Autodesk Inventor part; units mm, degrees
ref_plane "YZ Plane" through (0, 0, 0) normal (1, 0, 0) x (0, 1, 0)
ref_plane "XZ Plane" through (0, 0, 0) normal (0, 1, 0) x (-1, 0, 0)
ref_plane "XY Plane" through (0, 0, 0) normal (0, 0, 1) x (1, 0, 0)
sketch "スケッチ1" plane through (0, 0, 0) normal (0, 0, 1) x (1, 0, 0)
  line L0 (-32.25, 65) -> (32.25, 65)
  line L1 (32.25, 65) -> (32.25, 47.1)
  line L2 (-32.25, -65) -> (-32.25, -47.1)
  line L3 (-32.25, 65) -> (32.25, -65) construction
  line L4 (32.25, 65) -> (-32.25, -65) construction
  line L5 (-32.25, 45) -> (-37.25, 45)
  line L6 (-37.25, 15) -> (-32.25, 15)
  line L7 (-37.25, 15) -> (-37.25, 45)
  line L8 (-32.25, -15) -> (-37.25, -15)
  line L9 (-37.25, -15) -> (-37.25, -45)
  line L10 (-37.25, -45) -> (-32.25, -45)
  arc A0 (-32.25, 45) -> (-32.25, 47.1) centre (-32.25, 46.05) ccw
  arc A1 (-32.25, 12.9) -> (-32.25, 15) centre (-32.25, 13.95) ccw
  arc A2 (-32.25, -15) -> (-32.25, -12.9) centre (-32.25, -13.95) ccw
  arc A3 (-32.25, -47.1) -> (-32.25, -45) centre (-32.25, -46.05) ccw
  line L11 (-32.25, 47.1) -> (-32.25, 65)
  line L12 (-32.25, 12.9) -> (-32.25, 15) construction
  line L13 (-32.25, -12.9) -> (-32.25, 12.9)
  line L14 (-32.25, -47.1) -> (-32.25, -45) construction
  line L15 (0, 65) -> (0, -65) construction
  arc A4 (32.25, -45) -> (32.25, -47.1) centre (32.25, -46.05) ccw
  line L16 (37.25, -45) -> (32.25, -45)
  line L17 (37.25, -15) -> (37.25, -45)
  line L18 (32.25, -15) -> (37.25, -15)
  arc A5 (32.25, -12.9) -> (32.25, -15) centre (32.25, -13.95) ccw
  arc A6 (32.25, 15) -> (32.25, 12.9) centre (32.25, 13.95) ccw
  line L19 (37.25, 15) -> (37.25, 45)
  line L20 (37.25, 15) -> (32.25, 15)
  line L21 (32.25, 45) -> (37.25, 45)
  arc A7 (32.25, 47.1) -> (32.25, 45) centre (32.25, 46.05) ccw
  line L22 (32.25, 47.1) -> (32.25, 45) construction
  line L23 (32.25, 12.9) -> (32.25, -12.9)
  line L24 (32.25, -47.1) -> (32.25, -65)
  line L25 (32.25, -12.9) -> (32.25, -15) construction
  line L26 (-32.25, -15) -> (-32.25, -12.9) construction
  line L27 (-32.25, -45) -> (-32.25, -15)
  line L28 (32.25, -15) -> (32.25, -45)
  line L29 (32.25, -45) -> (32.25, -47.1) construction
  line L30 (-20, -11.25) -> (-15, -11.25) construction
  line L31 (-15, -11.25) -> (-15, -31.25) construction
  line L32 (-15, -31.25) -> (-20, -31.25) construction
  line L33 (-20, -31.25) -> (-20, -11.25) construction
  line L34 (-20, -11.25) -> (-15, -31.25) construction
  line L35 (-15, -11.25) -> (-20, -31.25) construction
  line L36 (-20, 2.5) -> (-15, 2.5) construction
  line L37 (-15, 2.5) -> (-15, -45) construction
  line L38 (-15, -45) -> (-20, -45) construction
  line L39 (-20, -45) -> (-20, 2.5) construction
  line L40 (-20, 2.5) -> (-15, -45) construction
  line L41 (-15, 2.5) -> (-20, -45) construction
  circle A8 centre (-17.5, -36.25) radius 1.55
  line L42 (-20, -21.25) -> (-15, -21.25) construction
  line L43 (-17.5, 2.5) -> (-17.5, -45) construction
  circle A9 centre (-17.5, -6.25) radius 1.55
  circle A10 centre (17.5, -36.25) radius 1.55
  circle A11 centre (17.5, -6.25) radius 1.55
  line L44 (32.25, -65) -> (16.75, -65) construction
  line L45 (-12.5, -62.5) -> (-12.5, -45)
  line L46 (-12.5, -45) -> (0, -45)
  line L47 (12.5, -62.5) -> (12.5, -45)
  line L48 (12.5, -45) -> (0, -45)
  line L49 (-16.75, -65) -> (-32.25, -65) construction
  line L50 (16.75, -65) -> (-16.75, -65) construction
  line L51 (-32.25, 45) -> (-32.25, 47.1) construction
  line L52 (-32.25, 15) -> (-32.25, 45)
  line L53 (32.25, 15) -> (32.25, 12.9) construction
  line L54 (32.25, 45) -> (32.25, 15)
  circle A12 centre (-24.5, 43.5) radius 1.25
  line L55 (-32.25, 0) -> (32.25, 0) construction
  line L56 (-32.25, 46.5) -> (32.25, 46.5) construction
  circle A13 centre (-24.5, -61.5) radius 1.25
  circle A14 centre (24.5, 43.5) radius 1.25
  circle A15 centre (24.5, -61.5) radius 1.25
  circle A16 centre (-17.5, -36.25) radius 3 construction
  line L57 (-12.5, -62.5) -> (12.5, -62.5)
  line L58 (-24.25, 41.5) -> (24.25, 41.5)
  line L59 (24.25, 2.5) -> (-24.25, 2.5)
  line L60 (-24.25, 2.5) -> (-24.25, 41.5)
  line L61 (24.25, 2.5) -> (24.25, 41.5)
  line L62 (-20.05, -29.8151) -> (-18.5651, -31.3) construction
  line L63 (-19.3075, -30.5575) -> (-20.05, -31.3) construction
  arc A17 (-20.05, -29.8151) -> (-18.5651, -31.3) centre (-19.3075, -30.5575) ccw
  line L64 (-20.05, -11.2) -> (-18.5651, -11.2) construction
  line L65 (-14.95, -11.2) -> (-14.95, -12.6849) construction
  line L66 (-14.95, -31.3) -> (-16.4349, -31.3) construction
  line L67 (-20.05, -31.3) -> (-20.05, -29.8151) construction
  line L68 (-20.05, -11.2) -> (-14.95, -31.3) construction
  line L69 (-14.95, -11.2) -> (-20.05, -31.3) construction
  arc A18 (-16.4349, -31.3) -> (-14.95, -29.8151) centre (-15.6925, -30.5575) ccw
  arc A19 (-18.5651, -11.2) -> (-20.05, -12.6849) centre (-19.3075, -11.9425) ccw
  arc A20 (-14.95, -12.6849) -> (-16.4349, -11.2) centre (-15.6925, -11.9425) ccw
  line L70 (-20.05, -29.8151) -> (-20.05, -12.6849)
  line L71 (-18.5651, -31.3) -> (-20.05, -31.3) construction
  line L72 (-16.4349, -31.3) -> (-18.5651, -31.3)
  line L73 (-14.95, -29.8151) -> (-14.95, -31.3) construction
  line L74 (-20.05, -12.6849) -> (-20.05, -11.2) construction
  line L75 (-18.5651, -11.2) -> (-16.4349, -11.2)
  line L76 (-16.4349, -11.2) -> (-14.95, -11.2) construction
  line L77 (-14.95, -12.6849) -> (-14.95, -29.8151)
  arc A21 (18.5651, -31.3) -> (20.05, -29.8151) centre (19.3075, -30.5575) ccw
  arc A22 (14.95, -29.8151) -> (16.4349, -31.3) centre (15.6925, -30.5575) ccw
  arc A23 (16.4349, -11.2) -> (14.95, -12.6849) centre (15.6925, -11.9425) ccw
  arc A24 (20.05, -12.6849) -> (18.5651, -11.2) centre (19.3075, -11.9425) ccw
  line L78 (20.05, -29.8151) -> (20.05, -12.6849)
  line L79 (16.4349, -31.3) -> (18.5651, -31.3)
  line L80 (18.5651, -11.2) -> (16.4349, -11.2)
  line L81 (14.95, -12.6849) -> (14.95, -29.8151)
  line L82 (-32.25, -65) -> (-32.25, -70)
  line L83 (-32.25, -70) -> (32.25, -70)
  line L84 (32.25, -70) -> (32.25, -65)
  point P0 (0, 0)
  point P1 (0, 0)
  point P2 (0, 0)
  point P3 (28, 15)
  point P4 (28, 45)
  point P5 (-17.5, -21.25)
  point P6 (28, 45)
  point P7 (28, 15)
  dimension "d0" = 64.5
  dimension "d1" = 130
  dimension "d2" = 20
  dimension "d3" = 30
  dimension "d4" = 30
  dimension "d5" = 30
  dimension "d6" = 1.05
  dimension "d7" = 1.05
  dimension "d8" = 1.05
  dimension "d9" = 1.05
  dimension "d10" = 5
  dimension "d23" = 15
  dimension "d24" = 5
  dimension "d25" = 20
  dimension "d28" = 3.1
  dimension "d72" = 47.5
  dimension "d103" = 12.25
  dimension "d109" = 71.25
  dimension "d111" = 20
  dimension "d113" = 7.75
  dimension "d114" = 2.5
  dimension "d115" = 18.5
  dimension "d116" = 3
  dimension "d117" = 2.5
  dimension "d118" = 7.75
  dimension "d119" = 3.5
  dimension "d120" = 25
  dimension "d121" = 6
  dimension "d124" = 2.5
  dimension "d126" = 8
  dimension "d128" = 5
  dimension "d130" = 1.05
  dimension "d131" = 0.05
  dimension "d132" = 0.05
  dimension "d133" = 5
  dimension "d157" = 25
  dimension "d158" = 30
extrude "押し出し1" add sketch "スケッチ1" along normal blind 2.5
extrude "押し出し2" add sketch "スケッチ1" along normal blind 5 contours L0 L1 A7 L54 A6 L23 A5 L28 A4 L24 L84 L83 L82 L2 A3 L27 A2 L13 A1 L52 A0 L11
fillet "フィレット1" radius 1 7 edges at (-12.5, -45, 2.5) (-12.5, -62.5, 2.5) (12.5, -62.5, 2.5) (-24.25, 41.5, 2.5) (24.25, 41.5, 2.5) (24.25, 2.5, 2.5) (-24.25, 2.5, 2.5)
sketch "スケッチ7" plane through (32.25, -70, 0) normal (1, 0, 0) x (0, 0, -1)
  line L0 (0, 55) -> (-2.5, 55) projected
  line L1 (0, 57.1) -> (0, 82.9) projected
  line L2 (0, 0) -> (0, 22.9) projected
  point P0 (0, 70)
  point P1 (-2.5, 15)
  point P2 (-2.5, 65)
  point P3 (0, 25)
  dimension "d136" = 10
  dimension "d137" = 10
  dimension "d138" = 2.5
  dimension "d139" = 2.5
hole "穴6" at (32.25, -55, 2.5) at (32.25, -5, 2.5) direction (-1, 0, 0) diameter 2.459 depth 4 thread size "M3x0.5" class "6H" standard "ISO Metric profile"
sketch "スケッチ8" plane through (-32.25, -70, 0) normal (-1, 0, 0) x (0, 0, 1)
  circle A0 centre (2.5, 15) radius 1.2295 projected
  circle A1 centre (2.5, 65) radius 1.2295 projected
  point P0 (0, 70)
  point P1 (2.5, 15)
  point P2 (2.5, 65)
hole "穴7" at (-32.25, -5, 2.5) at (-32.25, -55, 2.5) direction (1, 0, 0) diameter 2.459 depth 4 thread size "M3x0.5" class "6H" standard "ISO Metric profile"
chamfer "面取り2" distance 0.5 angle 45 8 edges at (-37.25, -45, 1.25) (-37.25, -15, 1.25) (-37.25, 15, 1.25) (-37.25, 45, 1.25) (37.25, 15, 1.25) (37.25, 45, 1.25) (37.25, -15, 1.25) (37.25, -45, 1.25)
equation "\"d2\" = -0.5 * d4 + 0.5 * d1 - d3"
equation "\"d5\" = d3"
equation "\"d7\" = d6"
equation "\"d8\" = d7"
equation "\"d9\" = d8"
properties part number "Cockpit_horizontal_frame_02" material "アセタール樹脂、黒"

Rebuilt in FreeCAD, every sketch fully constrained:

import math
import FreeCAD as App
import Part
import Sketcher


def edges_at(feature, points):
    """Names of the edges that pass closest to the given points."""
    edges = feature.Shape.Edges
    near = lambda p: min(range(len(edges)), key=lambda i: edges[i].distToShape(Part.Vertex(*p))[0])
    return sorted({f"Edge{near(p) + 1}" for p in points})


def add_polygon(sketch, points):
    """Adds a closed chain of lines whose ends are joined by coincident constraints."""
    first, n = sketch.GeometryCount, len(points)
    for a, b in zip(points, points[1:] + points[:1]):
        sketch.addGeometry(Part.LineSegment(App.Vector(*a, 0), App.Vector(*b, 0)), False)
    for i in range(n):
        sketch.addConstraint(Sketcher.Constraint("Coincident", first + i, 2, first + (i + 1) % n, 1))

doc = App.newDocument("Part")
body = doc.addObject("PartDesign::Body", "Body")

sketch1 = body.newObject("Sketcher::SketchObject", "Sketch")
sketch1.AttachmentSupport = (doc.getObject("XY_Plane"), [""])
sketch1.MapMode = "FlatFace"
sketch1.addGeometry(Part.LineSegment(App.Vector(32.25, 65, 0), App.Vector(-32.25, 65, 0)), False)
sketch1.addGeometry(Part.LineSegment(App.Vector(-32.25, 65, 0), App.Vector(-32.25, 47.1, 0)), False)
sketch1.addGeometry(Part.ArcOfCircle(Part.Circle(App.Vector(-32.25, 46.05, 0), App.Vector(0, 0, 1), 1.05), math.radians(-90), math.radians(90)), False)
sketch1.addGeometry(Part.LineSegment(App.Vector(-32.25, 45, 0), App.Vector(-37.25, 45, 0)), False)
sketch1.addGeometry(Part.LineSegment(App.Vector(-37.25, 45, 0), App.Vector(-37.25, 15, 0)), False)
sketch1.addGeometry(Part.LineSegment(App.Vector(-37.25, 15, 0), App.Vector(-32.25, 15, 0)), False)
sketch1.addGeometry(Part.ArcOfCircle(Part.Circle(App.Vector(-32.25, 13.95, 0), App.Vector(0, 0, 1), 1.05), math.radians(-90), math.radians(90)), False)
sketch1.addGeometry(Part.LineSegment(App.Vector(-32.25, 12.9, 0), App.Vector(-32.25, -12.9, 0)), False)
sketch1.addGeometry(Part.ArcOfCircle(Part.Circle(App.Vector(-32.25, -13.95, 0), App.Vector(0, 0, 1), 1.05), math.radians(-90), math.radians(90)), False)
sketch1.addGeometry(Part.LineSegment(App.Vector(-32.25, -15, 0), App.Vector(-37.25, -15, 0)), False)
sketch1.addGeometry(Part.LineSegment(App.Vector(-37.25, -15, 0), App.Vector(-37.25, -45, 0)), False)
sketch1.addGeometry(Part.LineSegment(App.Vector(-37.25, -45, 0), App.Vector(-32.25, -45, 0)), False)
sketch1.addGeometry(Part.ArcOfCircle(Part.Circle(App.Vector(-32.25, -46.05, 0), App.Vector(0, 0, 1), 1.05), math.radians(-90), math.radians(90)), False)
sketch1.addGeometry(Part.LineSegment(App.Vector(-32.25, -47.1, 0), App.Vector(-32.25, -70, 0)), False)
sketch1.addGeometry(Part.LineSegment(App.Vector(-32.25, -70, 0), App.Vector(32.25, -70, 0)), False)
sketch1.addGeometry(Part.LineSegment(App.Vector(32.25, -70, 0), App.Vector(32.25, -47.1, 0)), False)
sketch1.addGeometry(Part.ArcOfCircle(Part.Circle(App.Vector(32.25, -46.05, 0), App.Vector(0, 0, 1), 1.05), math.radians(90), math.radians(270)), False)
sketch1.addGeometry(Part.LineSegment(App.Vector(32.25, -45, 0), App.Vector(37.25, -45, 0)), False)
sketch1.addGeometry(Part.LineSegment(App.Vector(37.25, -45, 0), App.Vector(37.25, -15, 0)), False)
sketch1.addGeometry(Part.LineSegment(App.Vector(37.25, -15, 0), App.Vector(32.25, -15, 0)), False)
sketch1.addGeometry(Part.ArcOfCircle(Part.Circle(App.Vector(32.25, -13.95, 0), App.Vector(0, 0, 1), 1.05), math.radians(90), math.radians(270)), False)
sketch1.addGeometry(Part.LineSegment(App.Vector(32.25, -12.9, 0), App.Vector(32.25, 12.9, 0)), False)
sketch1.addGeometry(Part.ArcOfCircle(Part.Circle(App.Vector(32.25, 13.95, 0), App.Vector(0, 0, 1), 1.05), math.radians(90), math.radians(270)), False)
sketch1.addGeometry(Part.LineSegment(App.Vector(32.25, 15, 0), App.Vector(37.25, 15, 0)), False)
sketch1.addGeometry(Part.LineSegment(App.Vector(37.25, 15, 0), App.Vector(37.25, 45, 0)), False)
sketch1.addGeometry(Part.LineSegment(App.Vector(37.25, 45, 0), App.Vector(32.25, 45, 0)), False)
sketch1.addGeometry(Part.ArcOfCircle(Part.Circle(App.Vector(32.25, 46.05, 0), App.Vector(0, 0, 1), 1.05), math.radians(90), math.radians(270)), False)
sketch1.addGeometry(Part.LineSegment(App.Vector(32.25, 47.1, 0), App.Vector(32.25, 65, 0)), False)
sketch1.addGeometry(Part.Circle(App.Vector(-24.5, -61.5, 0), App.Vector(0, 0, 1), 1.25), False)
sketch1.addGeometry(Part.Circle(App.Vector(-17.5, -36.25, 0), App.Vector(0, 0, 1), 1.55), False)
sketch1.addGeometry(Part.ArcOfCircle(Part.Circle(App.Vector(-19.3075, -30.5575, 0), App.Vector(0, 0, 1), 1.049983), math.radians(135.003859), math.radians(314.996141)), False)
sketch1.addGeometry(Part.LineSegment(App.Vector(-20.05, -29.8151, 0), App.Vector(-20.05, -12.6849, 0)), False)
sketch1.addGeometry(Part.ArcOfCircle(Part.Circle(App.Vector(-19.3075, -11.9425, 0), App.Vector(0, 0, 1), 1.049983), math.radians(45.003859), math.radians(224.996141)), False)
sketch1.addGeometry(Part.LineSegment(App.Vector(-18.5651, -11.2, 0), App.Vector(-16.4349, -11.2, 0)), False)
sketch1.addGeometry(Part.ArcOfCircle(Part.Circle(App.Vector(-15.6925, -11.9425, 0), App.Vector(0, 0, 1), 1.049983), math.radians(-44.996141), math.radians(134.996141)), False)
sketch1.addGeometry(Part.LineSegment(App.Vector(-14.95, -12.6849, 0), App.Vector(-14.95, -29.8151, 0)), False)
sketch1.addGeometry(Part.ArcOfCircle(Part.Circle(App.Vector(-15.6925, -30.5575, 0), App.Vector(0, 0, 1), 1.049983), math.radians(-134.996141), math.radians(44.996141)), False)
sketch1.addGeometry(Part.LineSegment(App.Vector(-16.4349, -31.3, 0), App.Vector(-18.5651, -31.3, 0)), False)
sketch1.addGeometry(Part.Circle(App.Vector(-17.5, -6.25, 0), App.Vector(0, 0, 1), 1.55), False)
add_polygon(sketch1, [(12.5, -62.5), (-12.5, -62.5), (-12.5, -45), (12.5, -45)])
sketch1.addGeometry(Part.Circle(App.Vector(24.5, -61.5, 0), App.Vector(0, 0, 1), 1.25), False)
sketch1.addGeometry(Part.Circle(App.Vector(17.5, -36.25, 0), App.Vector(0, 0, 1), 1.55), False)
sketch1.addGeometry(Part.ArcOfCircle(Part.Circle(App.Vector(19.3075, -30.5575, 0), App.Vector(0, 0, 1), 1.049983), math.radians(-134.996141), math.radians(44.996141)), False)
sketch1.addGeometry(Part.LineSegment(App.Vector(18.5651, -31.3, 0), App.Vector(16.4349, -31.3, 0)), False)
sketch1.addGeometry(Part.ArcOfCircle(Part.Circle(App.Vector(15.6925, -30.5575, 0), App.Vector(0, 0, 1), 1.049983), math.radians(135.003859), math.radians(314.996141)), False)
sketch1.addGeometry(Part.LineSegment(App.Vector(14.95, -29.8151, 0), App.Vector(14.95, -12.6849, 0)), False)
sketch1.addGeometry(Part.ArcOfCircle(Part.Circle(App.Vector(15.6925, -11.9425, 0), App.Vector(0, 0, 1), 1.049983), math.radians(45.003859), math.radians(224.996141)), False)
sketch1.addGeometry(Part.LineSegment(App.Vector(16.4349, -11.2, 0), App.Vector(18.5651, -11.2, 0)), False)
sketch1.addGeometry(Part.ArcOfCircle(Part.Circle(App.Vector(19.3075, -11.9425, 0), App.Vector(0, 0, 1), 1.049983), math.radians(-44.996141), math.radians(134.996141)), False)
sketch1.addGeometry(Part.LineSegment(App.Vector(20.05, -12.6849, 0), App.Vector(20.05, -29.8151, 0)), False)
sketch1.addGeometry(Part.Circle(App.Vector(17.5, -6.25, 0), App.Vector(0, 0, 1), 1.55), False)
sketch1.addGeometry(Part.Circle(App.Vector(-24.5, 43.5, 0), App.Vector(0, 0, 1), 1.25), False)
add_polygon(sketch1, [(-24.25, 2.5), (-24.25, 41.5), (24.25, 41.5), (24.25, 2.5)])
sketch1.addGeometry(Part.Circle(App.Vector(24.5, 43.5, 0), App.Vector(0, 0, 1), 1.25), False)
sketch1.addConstraint(Sketcher.Constraint("Coincident", 0, 2, 1, 1))
sketch1.addConstraint(Sketcher.Constraint("Coincident", 1, 2, 2, 2))
sketch1.addConstraint(Sketcher.Constraint("Tangent", 2, 1, 3, 1))
sketch1.addConstraint(Sketcher.Constraint("Coincident", 3, 2, 4, 1))
sketch1.addConstraint(Sketcher.Constraint("Coincident", 4, 2, 5, 1))
sketch1.addConstraint(Sketcher.Constraint("Tangent", 5, 2, 6, 2))
sketch1.addConstraint(Sketcher.Constraint("Coincident", 6, 1, 7, 1))
sketch1.addConstraint(Sketcher.Constraint("Coincident", 7, 2, 8, 2))
sketch1.addConstraint(Sketcher.Constraint("Tangent", 8, 1, 9, 1))
sketch1.addConstraint(Sketcher.Constraint("Coincident", 9, 2, 10, 1))
sketch1.addConstraint(Sketcher.Constraint("Coincident", 10, 2, 11, 1))
sketch1.addConstraint(Sketcher.Constraint("Tangent", 11, 2, 12, 2))
sketch1.addConstraint(Sketcher.Constraint("Coincident", 12, 1, 13, 1))
sketch1.addConstraint(Sketcher.Constraint("Coincident", 13, 2, 14, 1))
sketch1.addConstraint(Sketcher.Constraint("Coincident", 14, 2, 15, 1))
sketch1.addConstraint(Sketcher.Constraint("Coincident", 15, 2, 16, 2))
sketch1.addConstraint(Sketcher.Constraint("Tangent", 16, 1, 17, 1))
sketch1.addConstraint(Sketcher.Constraint("Coincident", 17, 2, 18, 1))
sketch1.addConstraint(Sketcher.Constraint("Coincident", 18, 2, 19, 1))
sketch1.addConstraint(Sketcher.Constraint("Tangent", 19, 2, 20, 2))
sketch1.addConstraint(Sketcher.Constraint("Coincident", 20, 1, 21, 1))
sketch1.addConstraint(Sketcher.Constraint("Coincident", 21, 2, 22, 2))
sketch1.addConstraint(Sketcher.Constraint("Tangent", 22, 1, 23, 1))
sketch1.addConstraint(Sketcher.Constraint("Coincident", 23, 2, 24, 1))
sketch1.addConstraint(Sketcher.Constraint("Coincident", 24, 2, 25, 1))
sketch1.addConstraint(Sketcher.Constraint("Tangent", 25, 2, 26, 2))
sketch1.addConstraint(Sketcher.Constraint("Coincident", 26, 1, 27, 1))
sketch1.addConstraint(Sketcher.Constraint("Coincident", 27, 2, 0, 1))
sketch1.addConstraint(Sketcher.Constraint("Coincident", 30, 1, 31, 1))
sketch1.addConstraint(Sketcher.Constraint("Coincident", 31, 2, 32, 2))
sketch1.addConstraint(Sketcher.Constraint("Coincident", 32, 1, 33, 1))
sketch1.addConstraint(Sketcher.Constraint("Coincident", 33, 2, 34, 2))
sketch1.addConstraint(Sketcher.Constraint("Coincident", 34, 1, 35, 1))
sketch1.addConstraint(Sketcher.Constraint("Coincident", 35, 2, 36, 2))
sketch1.addConstraint(Sketcher.Constraint("Coincident", 36, 1, 37, 1))
sketch1.addConstraint(Sketcher.Constraint("Coincident", 37, 2, 30, 2))
sketch1.addConstraint(Sketcher.Constraint("Coincident", 45, 1, 46, 1))
sketch1.addConstraint(Sketcher.Constraint("Coincident", 46, 2, 47, 2))
sketch1.addConstraint(Sketcher.Constraint("Coincident", 47, 1, 48, 1))
sketch1.addConstraint(Sketcher.Constraint("Coincident", 48, 2, 49, 2))
sketch1.addConstraint(Sketcher.Constraint("Coincident", 49, 1, 50, 1))
sketch1.addConstraint(Sketcher.Constraint("Coincident", 50, 2, 51, 2))
sketch1.addConstraint(Sketcher.Constraint("Coincident", 51, 1, 52, 1))
sketch1.addConstraint(Sketcher.Constraint("Coincident", 52, 2, 45, 2))
sketch1.addConstraint(Sketcher.Constraint("Horizontal", 0))
sketch1.addConstraint(Sketcher.Constraint("Vertical", 1))
sketch1.addConstraint(Sketcher.Constraint("Horizontal", 3))
sketch1.addConstraint(Sketcher.Constraint("Vertical", 4))
sketch1.addConstraint(Sketcher.Constraint("Horizontal", 5))
sketch1.addConstraint(Sketcher.Constraint("Vertical", 7))
sketch1.addConstraint(Sketcher.Constraint("Horizontal", 9))
sketch1.addConstraint(Sketcher.Constraint("Vertical", 10))
sketch1.addConstraint(Sketcher.Constraint("Horizontal", 11))
sketch1.addConstraint(Sketcher.Constraint("Vertical", 13))
sketch1.addConstraint(Sketcher.Constraint("Horizontal", 14))
sketch1.addConstraint(Sketcher.Constraint("Vertical", 15))
sketch1.addConstraint(Sketcher.Constraint("Horizontal", 17))
sketch1.addConstraint(Sketcher.Constraint("Vertical", 18))
sketch1.addConstraint(Sketcher.Constraint("Horizontal", 19))
sketch1.addConstraint(Sketcher.Constraint("Vertical", 21))
sketch1.addConstraint(Sketcher.Constraint("Horizontal", 23))
sketch1.addConstraint(Sketcher.Constraint("Vertical", 24))
sketch1.addConstraint(Sketcher.Constraint("Horizontal", 25))
sketch1.addConstraint(Sketcher.Constraint("Vertical", 27))
sketch1.addConstraint(Sketcher.Constraint("Vertical", 31))
sketch1.addConstraint(Sketcher.Constraint("Horizontal", 33))
sketch1.addConstraint(Sketcher.Constraint("Vertical", 35))
sketch1.addConstraint(Sketcher.Constraint("Horizontal", 37))
sketch1.addConstraint(Sketcher.Constraint("Horizontal", 39))
sketch1.addConstraint(Sketcher.Constraint("Vertical", 40))
sketch1.addConstraint(Sketcher.Constraint("Horizontal", 41))
sketch1.addConstraint(Sketcher.Constraint("Vertical", 42))
sketch1.addConstraint(Sketcher.Constraint("Horizontal", 46))
sketch1.addConstraint(Sketcher.Constraint("Vertical", 48))
sketch1.addConstraint(Sketcher.Constraint("Horizontal", 50))
sketch1.addConstraint(Sketcher.Constraint("Vertical", 52))
sketch1.addConstraint(Sketcher.Constraint("Vertical", 55))
sketch1.addConstraint(Sketcher.Constraint("Horizontal", 56))
sketch1.addConstraint(Sketcher.Constraint("Vertical", 57))
sketch1.addConstraint(Sketcher.Constraint("Horizontal", 58))
sketch1.addConstraint(Sketcher.Constraint("Equal", 2, 6))
sketch1.addConstraint(Sketcher.Constraint("Equal", 6, 8))
sketch1.addConstraint(Sketcher.Constraint("Equal", 8, 12))
sketch1.addConstraint(Sketcher.Constraint("Equal", 12, 16))
sketch1.addConstraint(Sketcher.Constraint("Equal", 16, 20))
sketch1.addConstraint(Sketcher.Constraint("Equal", 20, 22))
sketch1.addConstraint(Sketcher.Constraint("Equal", 22, 26))
sketch1.addConstraint(Sketcher.Constraint("Equal", 26, 30))
sketch1.addConstraint(Sketcher.Constraint("Equal", 30, 32))
sketch1.addConstraint(Sketcher.Constraint("Equal", 32, 34))
sketch1.addConstraint(Sketcher.Constraint("Equal", 34, 36))
sketch1.addConstraint(Sketcher.Constraint("Equal", 29, 38))
sketch1.addConstraint(Sketcher.Constraint("Equal", 28, 43))
sketch1.addConstraint(Sketcher.Constraint("Equal", 38, 44))
sketch1.addConstraint(Sketcher.Constraint("Equal", 36, 45))
sketch1.addConstraint(Sketcher.Constraint("Equal", 45, 47))
sketch1.addConstraint(Sketcher.Constraint("Equal", 47, 49))
sketch1.addConstraint(Sketcher.Constraint("Equal", 49, 51))
sketch1.addConstraint(Sketcher.Constraint("Equal", 44, 53))
sketch1.addConstraint(Sketcher.Constraint("Equal", 43, 54))
sketch1.addConstraint(Sketcher.Constraint("Equal", 54, 59))
sketch1.addConstraint(Sketcher.Constraint("Symmetric", 2, 3, 16, 3, -1, 1))
sketch1.addConstraint(Sketcher.Constraint("Symmetric", 6, 3, 20, 3, -1, 1))
sketch1.addConstraint(Sketcher.Constraint("Symmetric", 8, 3, 22, 3, -1, 1))
sketch1.addConstraint(Sketcher.Constraint("Symmetric", 12, 3, 26, 3, -1, 1))
sketch1.addConstraint(Sketcher.Constraint("Symmetric", 12, 3, 16, 3, -2))
sketch1.addConstraint(Sketcher.Constraint("Symmetric", 8, 3, 20, 3, -2))
sketch1.addConstraint(Sketcher.Constraint("Symmetric", 28, 3, 43, 3, -2))
sketch1.addConstraint(Sketcher.Constraint("Symmetric", 29, 3, 44, 3, -2))
sketch1.addConstraint(Sketcher.Constraint("Symmetric", 30, 3, 45, 3, -2))
sketch1.addConstraint(Sketcher.Constraint("Symmetric", 36, 3, 47, 3, -2))
sketch1.addConstraint(Sketcher.Constraint("Symmetric", 34, 3, 49, 3, -2))
sketch1.addConstraint(Sketcher.Constraint("Symmetric", 32, 3, 51, 3, -2))
sketch1.addConstraint(Sketcher.Constraint("Symmetric", 38, 3, 53, 3, -2))
sketch1.addConstraint(Sketcher.Constraint("Symmetric", 54, 3, 59, 3, -2))
sketch1.addConstraint(Sketcher.Constraint("Horizontal", 32, 3, 34, 3))
sketch1.addConstraint(Sketcher.Constraint("Horizontal", 30, 3, 36, 3))
sketch1.addConstraint(Sketcher.Constraint("Horizontal", 31, 2, 34, 1))
sketch1.addConstraint(Sketcher.Constraint("Horizontal", 30, 1, 35, 2))
sketch1.addConstraint(Sketcher.Constraint("Horizontal", 17, 2, 40, 2))
sketch1.addConstraint(Sketcher.Constraint("Horizontal", 37, 2, 45, 1))
sketch1.addConstraint(Sketcher.Constraint("Horizontal", 35, 2, 47, 1))
sketch1.addConstraint(Sketcher.Constraint("Horizontal", 33, 2, 49, 1))
sketch1.addConstraint(Sketcher.Constraint("Horizontal", 48, 2, 51, 1))
sketch1.addConstraint(Sketcher.Constraint("Vertical", 2, 3, 6, 3))
sketch1.addConstraint(Sketcher.Constraint("Vertical", 30, 3, 32, 3))
sketch1.addConstraint(Sketcher.Constraint("Vertical", 29, 3, 38, 3))
sketch1.addConstraint(Sketcher.Constraint("Vertical", 28, 3, 54, 3))
sketch1.addConstraint(Sketcher.Constraint("Vertical", 12, 3, 0, 2))
sketch1.addConstraint(Sketcher.Constraint("Vertical", 5, 2, 6, 1))
sketch1.addConstraint(Sketcher.Constraint("Vertical", 4, 2, 9, 2))
sketch1.addConstraint(Sketcher.Constraint("Vertical", 11, 2, 12, 1))
sketch1.addConstraint(Sketcher.Constraint("Vertical", 26, 3, 14, 2))
sketch1.addConstraint(Sketcher.Constraint("Vertical", 19, 2, 20, 1))
sketch1.addConstraint(Sketcher.Constraint("Vertical", 18, 2, 23, 2))
sketch1.addConstraint(Sketcher.Constraint("Vertical", 25, 2, 26, 1))
sketch1.addConstraint(Sketcher.Constraint("Vertical", 33, 2, 36, 1))
sketch1.addConstraint(Sketcher.Constraint("Equal", 11, 17))
sketch1.addConstraint(Sketcher.Constraint("Diameter", 28, 2.5))
sketch1.addConstraint(Sketcher.Constraint("Diameter", 29, 3.1))
sketch1.addConstraint(Sketcher.Constraint("DistanceX", 3, 2, 3, 1, 5.0))
sketch1.addConstraint(Sketcher.Constraint("DistanceX", 39, 2, 39, 1, 25.0))
sketch1.addConstraint(Sketcher.Constraint("DistanceY", 4, 2, 4, 1, 30.0))
sketch1.addConstraint(Sketcher.Constraint("Radius", 2, 1.05))
sketch1.addConstraint(Sketcher.Constraint("DistanceX", 0, 2, 0, 1, 64.5))
sketch1.addConstraint(Sketcher.Constraint("DistanceY", -1, 1, 4, 2, 15.0))
sketch1.addConstraint(Sketcher.Constraint("DistanceY", -1, 1, 57, 2, 2.5))
sketch1.addConstraint(Sketcher.Constraint("DistanceY", 55, 1, 55, 2, 39.0))
sketch1.addConstraint(Sketcher.Constraint("DistanceX", 56, 1, 56, 2, 48.5))
sketch1.addConstraint(Sketcher.Constraint("DistanceY", 1, 2, 1, 1, 17.9))
sketch1.addConstraint(Sketcher.Constraint("DistanceY", 13, 2, 13, 1, 22.9))
sketch1.addConstraint(Sketcher.Constraint("DistanceY", 40, 1, 40, 2, 17.5))
sketch1.addConstraint(Sketcher.Constraint("DistanceX", 28, 3, -1, 1, 24.5))
sketch1.addConstraint(Sketcher.Constraint("DistanceY", 28, 3, -1, 1, 61.5))
sketch1.addConstraint(Sketcher.Constraint("DistanceX", 29, 3, -1, 1, 17.5))
sketch1.addConstraint(Sketcher.Constraint("DistanceY", -1, 1, 54, 3, 43.5))
sketch1.addConstraint(Sketcher.Constraint("DistanceY", 32, 1, -1, 1, 11.2))
sketch1.addConstraint(Sketcher.Constraint("DistanceY", 36, 1, -1, 1, 31.3))
sketch1.addConstraint(Sketcher.Constraint("DistanceX", 39, 2, -1, 1, 12.5))
sketch1.addConstraint(Sketcher.Constraint("DistanceY", 29, 3, -1, 1, 36.25))
sketch1.addConstraint(Sketcher.Constraint("DistanceY", 38, 3, -1, 1, 6.25))
sketch1.addConstraint(Sketcher.Constraint("DistanceX", 30, 1, -1, 1, 20.05))
sketch1.addConstraint(Sketcher.Constraint("DistanceX", 34, 1, -1, 1, 14.95))
sketch1.addConstraint(Sketcher.Constraint("DistanceX", 55, 2, -1, 1, 24.25))
sketch1.addConstraint(Sketcher.Constraint("DistanceX", 33, 1, 33, 2, 2.1302))
sketch1.addConstraint(Sketcher.Constraint("DistanceX", 30, 3, -1, 1, 19.3075))
pad1 = body.newObject("PartDesign::Pad", "Pad")
pad1.Profile = sketch1
pad1.Length = 2.5

sketch2 = body.newObject("Sketcher::SketchObject", "Sketch001")
sketch2.AttachmentSupport = (doc.getObject("XY_Plane"), [""])
sketch2.MapMode = "FlatFace"
sketch2.addGeometry(Part.LineSegment(App.Vector(32.25, 65, 0), App.Vector(-32.25, 65, 0)), False)
sketch2.addGeometry(Part.LineSegment(App.Vector(-32.25, 65, 0), App.Vector(-32.25, 47.1, 0)), False)
sketch2.addGeometry(Part.ArcOfCircle(Part.Circle(App.Vector(-32.25, 46.05, 0), App.Vector(0, 0, 1), 1.05), math.radians(-90), math.radians(90)), False)
sketch2.addGeometry(Part.LineSegment(App.Vector(-32.25, 45, 0), App.Vector(-32.25, 15, 0)), False)
sketch2.addGeometry(Part.ArcOfCircle(Part.Circle(App.Vector(-32.25, 13.95, 0), App.Vector(0, 0, 1), 1.05), math.radians(-90), math.radians(90)), False)
sketch2.addGeometry(Part.LineSegment(App.Vector(-32.25, 12.9, 0), App.Vector(-32.25, -12.9, 0)), False)
sketch2.addGeometry(Part.ArcOfCircle(Part.Circle(App.Vector(-32.25, -13.95, 0), App.Vector(0, 0, 1), 1.05), math.radians(-90), math.radians(90)), False)
sketch2.addGeometry(Part.LineSegment(App.Vector(-32.25, -15, 0), App.Vector(-32.25, -45, 0)), False)
sketch2.addGeometry(Part.ArcOfCircle(Part.Circle(App.Vector(-32.25, -46.05, 0), App.Vector(0, 0, 1), 1.05), math.radians(-90), math.radians(90)), False)
sketch2.addGeometry(Part.LineSegment(App.Vector(-32.25, -47.1, 0), App.Vector(-32.25, -70, 0)), False)
sketch2.addGeometry(Part.LineSegment(App.Vector(-32.25, -70, 0), App.Vector(32.25, -70, 0)), False)
sketch2.addGeometry(Part.LineSegment(App.Vector(32.25, -70, 0), App.Vector(32.25, -47.1, 0)), False)
sketch2.addGeometry(Part.ArcOfCircle(Part.Circle(App.Vector(32.25, -46.05, 0), App.Vector(0, 0, 1), 1.05), math.radians(90), math.radians(270)), False)
sketch2.addGeometry(Part.LineSegment(App.Vector(32.25, -45, 0), App.Vector(32.25, -15, 0)), False)
sketch2.addGeometry(Part.ArcOfCircle(Part.Circle(App.Vector(32.25, -13.95, 0), App.Vector(0, 0, 1), 1.05), math.radians(90), math.radians(270)), False)
sketch2.addGeometry(Part.LineSegment(App.Vector(32.25, -12.9, 0), App.Vector(32.25, 12.9, 0)), False)
sketch2.addGeometry(Part.ArcOfCircle(Part.Circle(App.Vector(32.25, 13.95, 0), App.Vector(0, 0, 1), 1.05), math.radians(90), math.radians(270)), False)
sketch2.addGeometry(Part.LineSegment(App.Vector(32.25, 15, 0), App.Vector(32.25, 45, 0)), False)
sketch2.addGeometry(Part.ArcOfCircle(Part.Circle(App.Vector(32.25, 46.05, 0), App.Vector(0, 0, 1), 1.05), math.radians(90), math.radians(270)), False)
sketch2.addGeometry(Part.LineSegment(App.Vector(32.25, 47.1, 0), App.Vector(32.25, 65, 0)), False)
sketch2.addGeometry(Part.Circle(App.Vector(-24.5, -61.5, 0), App.Vector(0, 0, 1), 1.25), False)
sketch2.addGeometry(Part.Circle(App.Vector(-17.5, -36.25, 0), App.Vector(0, 0, 1), 1.55), False)
sketch2.addGeometry(Part.ArcOfCircle(Part.Circle(App.Vector(-19.3075, -30.5575, 0), App.Vector(0, 0, 1), 1.049983), math.radians(135.003859), math.radians(314.996141)), False)
sketch2.addGeometry(Part.LineSegment(App.Vector(-20.05, -29.8151, 0), App.Vector(-20.05, -12.6849, 0)), False)
sketch2.addGeometry(Part.ArcOfCircle(Part.Circle(App.Vector(-19.3075, -11.9425, 0), App.Vector(0, 0, 1), 1.049983), math.radians(45.003859), math.radians(224.996141)), False)
sketch2.addGeometry(Part.LineSegment(App.Vector(-18.5651, -11.2, 0), App.Vector(-16.4349, -11.2, 0)), False)
sketch2.addGeometry(Part.ArcOfCircle(Part.Circle(App.Vector(-15.6925, -11.9425, 0), App.Vector(0, 0, 1), 1.049983), math.radians(-44.996141), math.radians(134.996141)), False)
sketch2.addGeometry(Part.LineSegment(App.Vector(-14.95, -12.6849, 0), App.Vector(-14.95, -29.8151, 0)), False)
sketch2.addGeometry(Part.ArcOfCircle(Part.Circle(App.Vector(-15.6925, -30.5575, 0), App.Vector(0, 0, 1), 1.049983), math.radians(-134.996141), math.radians(44.996141)), False)
sketch2.addGeometry(Part.LineSegment(App.Vector(-16.4349, -31.3, 0), App.Vector(-18.5651, -31.3, 0)), False)
sketch2.addGeometry(Part.Circle(App.Vector(-17.5, -6.25, 0), App.Vector(0, 0, 1), 1.55), False)
add_polygon(sketch2, [(12.5, -62.5), (-12.5, -62.5), (-12.5, -45), (12.5, -45)])
sketch2.addGeometry(Part.Circle(App.Vector(24.5, -61.5, 0), App.Vector(0, 0, 1), 1.25), False)
sketch2.addGeometry(Part.Circle(App.Vector(17.5, -36.25, 0), App.Vector(0, 0, 1), 1.55), False)
sketch2.addGeometry(Part.ArcOfCircle(Part.Circle(App.Vector(19.3075, -30.5575, 0), App.Vector(0, 0, 1), 1.049983), math.radians(-134.996141), math.radians(44.996141)), False)
sketch2.addGeometry(Part.LineSegment(App.Vector(18.5651, -31.3, 0), App.Vector(16.4349, -31.3, 0)), False)
sketch2.addGeometry(Part.ArcOfCircle(Part.Circle(App.Vector(15.6925, -30.5575, 0), App.Vector(0, 0, 1), 1.049983), math.radians(135.003859), math.radians(314.996141)), False)
sketch2.addGeometry(Part.LineSegment(App.Vector(14.95, -29.8151, 0), App.Vector(14.95, -12.6849, 0)), False)
sketch2.addGeometry(Part.ArcOfCircle(Part.Circle(App.Vector(15.6925, -11.9425, 0), App.Vector(0, 0, 1), 1.049983), math.radians(45.003859), math.radians(224.996141)), False)
sketch2.addGeometry(Part.LineSegment(App.Vector(16.4349, -11.2, 0), App.Vector(18.5651, -11.2, 0)), False)
sketch2.addGeometry(Part.ArcOfCircle(Part.Circle(App.Vector(19.3075, -11.9425, 0), App.Vector(0, 0, 1), 1.049983), math.radians(-44.996141), math.radians(134.996141)), False)
sketch2.addGeometry(Part.LineSegment(App.Vector(20.05, -12.6849, 0), App.Vector(20.05, -29.8151, 0)), False)
sketch2.addGeometry(Part.Circle(App.Vector(17.5, -6.25, 0), App.Vector(0, 0, 1), 1.55), False)
sketch2.addGeometry(Part.Circle(App.Vector(-24.5, 43.5, 0), App.Vector(0, 0, 1), 1.25), False)
add_polygon(sketch2, [(-24.25, 2.5), (-24.25, 41.5), (24.25, 41.5), (24.25, 2.5)])
sketch2.addGeometry(Part.Circle(App.Vector(24.5, 43.5, 0), App.Vector(0, 0, 1), 1.25), False)
sketch2.addConstraint(Sketcher.Constraint("Coincident", 0, 2, 1, 1))
sketch2.addConstraint(Sketcher.Constraint("Coincident", 1, 2, 2, 2))
sketch2.addConstraint(Sketcher.Constraint("Coincident", 2, 1, 3, 1))
sketch2.addConstraint(Sketcher.Constraint("Coincident", 3, 2, 4, 2))
sketch2.addConstraint(Sketcher.Constraint("Coincident", 4, 1, 5, 1))
sketch2.addConstraint(Sketcher.Constraint("Coincident", 5, 2, 6, 2))
sketch2.addConstraint(Sketcher.Constraint("Coincident", 6, 1, 7, 1))
sketch2.addConstraint(Sketcher.Constraint("Coincident", 7, 2, 8, 2))
sketch2.addConstraint(Sketcher.Constraint("Coincident", 8, 1, 9, 1))
sketch2.addConstraint(Sketcher.Constraint("Coincident", 9, 2, 10, 1))
sketch2.addConstraint(Sketcher.Constraint("Coincident", 10, 2, 11, 1))
sketch2.addConstraint(Sketcher.Constraint("Coincident", 11, 2, 12, 2))
sketch2.addConstraint(Sketcher.Constraint("Coincident", 12, 1, 13, 1))
sketch2.addConstraint(Sketcher.Constraint("Coincident", 13, 2, 14, 2))
sketch2.addConstraint(Sketcher.Constraint("Coincident", 14, 1, 15, 1))
sketch2.addConstraint(Sketcher.Constraint("Coincident", 15, 2, 16, 2))
sketch2.addConstraint(Sketcher.Constraint("Coincident", 16, 1, 17, 1))
sketch2.addConstraint(Sketcher.Constraint("Coincident", 17, 2, 18, 2))
sketch2.addConstraint(Sketcher.Constraint("Coincident", 18, 1, 19, 1))
sketch2.addConstraint(Sketcher.Constraint("Coincident", 19, 2, 0, 1))
sketch2.addConstraint(Sketcher.Constraint("Coincident", 22, 1, 23, 1))
sketch2.addConstraint(Sketcher.Constraint("Coincident", 23, 2, 24, 2))
sketch2.addConstraint(Sketcher.Constraint("Coincident", 24, 1, 25, 1))
sketch2.addConstraint(Sketcher.Constraint("Coincident", 25, 2, 26, 2))
sketch2.addConstraint(Sketcher.Constraint("Coincident", 26, 1, 27, 1))
sketch2.addConstraint(Sketcher.Constraint("Coincident", 27, 2, 28, 2))
sketch2.addConstraint(Sketcher.Constraint("Coincident", 28, 1, 29, 1))
sketch2.addConstraint(Sketcher.Constraint("Coincident", 29, 2, 22, 2))
sketch2.addConstraint(Sketcher.Constraint("Coincident", 37, 1, 38, 1))
sketch2.addConstraint(Sketcher.Constraint("Coincident", 38, 2, 39, 2))
sketch2.addConstraint(Sketcher.Constraint("Coincident", 39, 1, 40, 1))
sketch2.addConstraint(Sketcher.Constraint("Coincident", 40, 2, 41, 2))
sketch2.addConstraint(Sketcher.Constraint("Coincident", 41, 1, 42, 1))
sketch2.addConstraint(Sketcher.Constraint("Coincident", 42, 2, 43, 2))
sketch2.addConstraint(Sketcher.Constraint("Coincident", 43, 1, 44, 1))
sketch2.addConstraint(Sketcher.Constraint("Coincident", 44, 2, 37, 2))
sketch2.addConstraint(Sketcher.Constraint("Horizontal", 0))
sketch2.addConstraint(Sketcher.Constraint("Vertical", 1))
sketch2.addConstraint(Sketcher.Constraint("Vertical", 3))
sketch2.addConstraint(Sketcher.Constraint("Vertical", 5))
sketch2.addConstraint(Sketcher.Constraint("Vertical", 7))
sketch2.addConstraint(Sketcher.Constraint("Vertical", 9))
sketch2.addConstraint(Sketcher.Constraint("Horizontal", 10))
sketch2.addConstraint(Sketcher.Constraint("Vertical", 11))
sketch2.addConstraint(Sketcher.Constraint("Vertical", 13))
sketch2.addConstraint(Sketcher.Constraint("Vertical", 15))
sketch2.addConstraint(Sketcher.Constraint("Vertical", 17))
sketch2.addConstraint(Sketcher.Constraint("Vertical", 19))
sketch2.addConstraint(Sketcher.Constraint("Vertical", 23))
sketch2.addConstraint(Sketcher.Constraint("Horizontal", 25))
sketch2.addConstraint(Sketcher.Constraint("Vertical", 27))
sketch2.addConstraint(Sketcher.Constraint("Horizontal", 29))
sketch2.addConstraint(Sketcher.Constraint("Horizontal", 31))
sketch2.addConstraint(Sketcher.Constraint("Vertical", 32))
sketch2.addConstraint(Sketcher.Constraint("Horizontal", 33))
sketch2.addConstraint(Sketcher.Constraint("Vertical", 34))
sketch2.addConstraint(Sketcher.Constraint("Horizontal", 38))
sketch2.addConstraint(Sketcher.Constraint("Vertical", 40))
sketch2.addConstraint(Sketcher.Constraint("Horizontal", 42))
sketch2.addConstraint(Sketcher.Constraint("Vertical", 44))
sketch2.addConstraint(Sketcher.Constraint("Vertical", 47))
sketch2.addConstraint(Sketcher.Constraint("Horizontal", 48))
sketch2.addConstraint(Sketcher.Constraint("Vertical", 49))
sketch2.addConstraint(Sketcher.Constraint("Horizontal", 50))
sketch2.addConstraint(Sketcher.Constraint("Equal", 2, 4))
sketch2.addConstraint(Sketcher.Constraint("Equal", 4, 6))
sketch2.addConstraint(Sketcher.Constraint("Equal", 6, 8))
sketch2.addConstraint(Sketcher.Constraint("Equal", 8, 12))
sketch2.addConstraint(Sketcher.Constraint("Equal", 12, 14))
sketch2.addConstraint(Sketcher.Constraint("Equal", 14, 16))
sketch2.addConstraint(Sketcher.Constraint("Equal", 16, 18))
sketch2.addConstraint(Sketcher.Constraint("Equal", 18, 22))
sketch2.addConstraint(Sketcher.Constraint("Equal", 22, 24))
sketch2.addConstraint(Sketcher.Constraint("Equal", 24, 26))
sketch2.addConstraint(Sketcher.Constraint("Equal", 26, 28))
sketch2.addConstraint(Sketcher.Constraint("Equal", 21, 30))
sketch2.addConstraint(Sketcher.Constraint("Equal", 20, 35))
sketch2.addConstraint(Sketcher.Constraint("Equal", 30, 36))
sketch2.addConstraint(Sketcher.Constraint("Equal", 28, 37))
sketch2.addConstraint(Sketcher.Constraint("Equal", 37, 39))
sketch2.addConstraint(Sketcher.Constraint("Equal", 39, 41))
sketch2.addConstraint(Sketcher.Constraint("Equal", 41, 43))
sketch2.addConstraint(Sketcher.Constraint("Equal", 36, 45))
sketch2.addConstraint(Sketcher.Constraint("Equal", 35, 46))
sketch2.addConstraint(Sketcher.Constraint("Equal", 46, 51))
sketch2.addConstraint(Sketcher.Constraint("Symmetric", 2, 3, 12, 3, -1, 1))
sketch2.addConstraint(Sketcher.Constraint("Symmetric", 4, 3, 14, 3, -1, 1))
sketch2.addConstraint(Sketcher.Constraint("Symmetric", 6, 3, 16, 3, -1, 1))
sketch2.addConstraint(Sketcher.Constraint("Symmetric", 8, 3, 18, 3, -1, 1))
sketch2.addConstraint(Sketcher.Constraint("Symmetric", 8, 3, 12, 3, -2))
sketch2.addConstraint(Sketcher.Constraint("Symmetric", 6, 3, 14, 3, -2))
sketch2.addConstraint(Sketcher.Constraint("Symmetric", 20, 3, 35, 3, -2))
sketch2.addConstraint(Sketcher.Constraint("Symmetric", 21, 3, 36, 3, -2))
sketch2.addConstraint(Sketcher.Constraint("Symmetric", 22, 3, 37, 3, -2))
sketch2.addConstraint(Sketcher.Constraint("Symmetric", 28, 3, 39, 3, -2))
sketch2.addConstraint(Sketcher.Constraint("Symmetric", 26, 3, 41, 3, -2))
sketch2.addConstraint(Sketcher.Constraint("Symmetric", 24, 3, 43, 3, -2))
sketch2.addConstraint(Sketcher.Constraint("Symmetric", 30, 3, 45, 3, -2))
sketch2.addConstraint(Sketcher.Constraint("Symmetric", 46, 3, 51, 3, -2))
sketch2.addConstraint(Sketcher.Constraint("Horizontal", 24, 3, 26, 3))
sketch2.addConstraint(Sketcher.Constraint("Horizontal", 22, 3, 28, 3))
sketch2.addConstraint(Sketcher.Constraint("Horizontal", 23, 2, 26, 1))
sketch2.addConstraint(Sketcher.Constraint("Horizontal", 22, 1, 27, 2))
sketch2.addConstraint(Sketcher.Constraint("Horizontal", 12, 1, 32, 2))
sketch2.addConstraint(Sketcher.Constraint("Horizontal", 29, 2, 37, 1))
sketch2.addConstraint(Sketcher.Constraint("Horizontal", 27, 2, 39, 1))
sketch2.addConstraint(Sketcher.Constraint("Horizontal", 25, 2, 41, 1))
sketch2.addConstraint(Sketcher.Constraint("Horizontal", 40, 2, 43, 1))
sketch2.addConstraint(Sketcher.Constraint("Vertical", 2, 3, 4, 3))
sketch2.addConstraint(Sketcher.Constraint("Vertical", 22, 3, 24, 3))
sketch2.addConstraint(Sketcher.Constraint("Vertical", 21, 3, 30, 3))
sketch2.addConstraint(Sketcher.Constraint("Vertical", 20, 3, 46, 3))
sketch2.addConstraint(Sketcher.Constraint("Vertical", 8, 3, 0, 2))
sketch2.addConstraint(Sketcher.Constraint("Vertical", 1, 2, 2, 1))
sketch2.addConstraint(Sketcher.Constraint("Vertical", 3, 2, 4, 1))
sketch2.addConstraint(Sketcher.Constraint("Vertical", 5, 2, 6, 1))
sketch2.addConstraint(Sketcher.Constraint("Vertical", 7, 2, 8, 1))
sketch2.addConstraint(Sketcher.Constraint("Vertical", 18, 3, 10, 2))
sketch2.addConstraint(Sketcher.Constraint("Vertical", 11, 2, 12, 1))
sketch2.addConstraint(Sketcher.Constraint("Vertical", 13, 2, 14, 1))
sketch2.addConstraint(Sketcher.Constraint("Vertical", 15, 2, 16, 1))
sketch2.addConstraint(Sketcher.Constraint("Vertical", 17, 2, 18, 1))
sketch2.addConstraint(Sketcher.Constraint("Vertical", 25, 2, 28, 1))
sketch2.addConstraint(Sketcher.Constraint("Diameter", 20, 2.5))
sketch2.addConstraint(Sketcher.Constraint("Diameter", 21, 3.1))
sketch2.addConstraint(Sketcher.Constraint("DistanceX", 31, 2, 31, 1, 25.0))
sketch2.addConstraint(Sketcher.Constraint("DistanceY", 3, 2, 3, 1, 30.0))
sketch2.addConstraint(Sketcher.Constraint("Radius", 2, 1.05))
sketch2.addConstraint(Sketcher.Constraint("DistanceX", 0, 2, 0, 1, 64.5))
sketch2.addConstraint(Sketcher.Constraint("DistanceY", -1, 1, 3, 2, 15.0))
sketch2.addConstraint(Sketcher.Constraint("DistanceY", -1, 1, 49, 2, 2.5))
sketch2.addConstraint(Sketcher.Constraint("DistanceY", 47, 1, 47, 2, 39.0))
sketch2.addConstraint(Sketcher.Constraint("DistanceX", 48, 1, 48, 2, 48.5))
sketch2.addConstraint(Sketcher.Constraint("DistanceY", 1, 2, 1, 1, 17.9))
sketch2.addConstraint(Sketcher.Constraint("DistanceY", 9, 2, 9, 1, 22.9))
sketch2.addConstraint(Sketcher.Constraint("DistanceY", 32, 1, 32, 2, 17.5))
sketch2.addConstraint(Sketcher.Constraint("DistanceX", 20, 3, -1, 1, 24.5))
sketch2.addConstraint(Sketcher.Constraint("DistanceY", 20, 3, -1, 1, 61.5))
sketch2.addConstraint(Sketcher.Constraint("DistanceX", 21, 3, -1, 1, 17.5))
sketch2.addConstraint(Sketcher.Constraint("DistanceY", -1, 1, 46, 3, 43.5))
sketch2.addConstraint(Sketcher.Constraint("DistanceY", 24, 1, -1, 1, 11.2))
sketch2.addConstraint(Sketcher.Constraint("DistanceY", 28, 1, -1, 1, 31.3))
sketch2.addConstraint(Sketcher.Constraint("DistanceX", 31, 2, -1, 1, 12.5))
sketch2.addConstraint(Sketcher.Constraint("DistanceY", 21, 3, -1, 1, 36.25))
sketch2.addConstraint(Sketcher.Constraint("DistanceY", 30, 3, -1, 1, 6.25))
sketch2.addConstraint(Sketcher.Constraint("DistanceX", 22, 1, -1, 1, 20.05))
sketch2.addConstraint(Sketcher.Constraint("DistanceX", 26, 1, -1, 1, 14.95))
sketch2.addConstraint(Sketcher.Constraint("DistanceX", 47, 2, -1, 1, 24.25))
sketch2.addConstraint(Sketcher.Constraint("DistanceX", 25, 1, 25, 2, 2.1302))
sketch2.addConstraint(Sketcher.Constraint("DistanceX", 22, 3, -1, 1, 19.3075))
pad2 = body.newObject("PartDesign::Pad", "Pad001")
pad2.Profile = sketch2
pad2.Length = 5
doc.recompute()

fillet = body.newObject("PartDesign::Fillet", "Fillet")
fillet.Base = (pad2, edges_at(pad2, [
    (-12.5, -45, 2.5),
    (-12.5, -62.5, 2.5),
    (12.5, -62.5, 2.5),
    (-24.25, 41.5, 2.5),
    (24.25, 41.5, 2.5),
    (24.25, 2.5, 2.5),
    (-24.25, 2.5, 2.5),
]))
fillet.Radius = 1

sketch3 = body.newObject("Sketcher::SketchObject", "Sketch002")
sketch3.AttachmentSupport = (doc.getObject("YZ_Plane"), [""])
sketch3.MapMode = "FlatFace"
sketch3.AttachmentOffset = App.Placement(App.Vector(0, 0, 32.25), App.Rotation())
sketch3.addGeometry(Part.Circle(App.Vector(-55, 2.5, 0), App.Vector(0, 0, 1), 1.2295), False)
sketch3.addGeometry(Part.Circle(App.Vector(-5, 2.5, 0), App.Vector(0, 0, 1), 1.2295), False)
sketch3.addConstraint(Sketcher.Constraint("Equal", 0, 1))
sketch3.addConstraint(Sketcher.Constraint("Horizontal", 0, 3, 1, 3))
sketch3.addConstraint(Sketcher.Constraint("Diameter", 0, 2.459))
sketch3.addConstraint(Sketcher.Constraint("DistanceX", 0, 3, -1, 1, 55.0))
sketch3.addConstraint(Sketcher.Constraint("DistanceX", 1, 3, -1, 1, 5.0))
sketch3.addConstraint(Sketcher.Constraint("DistanceY", -1, 1, 0, 3, 2.5))
doc.recompute()
hole = body.newObject("PartDesign::Hole", "Hole")
hole.Profile = sketch3
hole.ThreadType = "None"
hole.Diameter = 2.459
hole.DepthType = "Dimension"
hole.Depth = 4
hole.DrillPoint = "Flat"

sketch4 = body.newObject("Sketcher::SketchObject", "Sketch003")
sketch4.AttachmentSupport = (doc.getObject("YZ_Plane"), [""])
sketch4.MapMode = "FlatFace"
sketch4.AttachmentOffset = App.Placement(App.Vector(0, 0, -32.25), App.Rotation())
sketch4.addGeometry(Part.Circle(App.Vector(-5, 2.5, 0), App.Vector(0, 0, 1), 1.2295), False)
sketch4.addGeometry(Part.Circle(App.Vector(-55, 2.5, 0), App.Vector(0, 0, 1), 1.2295), False)
sketch4.addConstraint(Sketcher.Constraint("Equal", 0, 1))
sketch4.addConstraint(Sketcher.Constraint("Horizontal", 0, 3, 1, 3))
sketch4.addConstraint(Sketcher.Constraint("Diameter", 0, 2.459))
sketch4.addConstraint(Sketcher.Constraint("DistanceX", 0, 3, -1, 1, 5.0))
sketch4.addConstraint(Sketcher.Constraint("DistanceX", 1, 3, -1, 1, 55.0))
sketch4.addConstraint(Sketcher.Constraint("DistanceY", -1, 1, 0, 3, 2.5))
doc.recompute()
hole2 = body.newObject("PartDesign::Hole", "Hole001")
hole2.Profile = sketch4
hole2.ThreadType = "None"
hole2.Diameter = 2.459
hole2.DepthType = "Dimension"
hole2.Depth = 4
hole2.DrillPoint = "Flat"
hole2.Reversed = True
doc.recompute()

chamfer = body.newObject("PartDesign::Chamfer", "Chamfer")
chamfer.Base = (hole2, edges_at(hole2, [
    (-37.25, -45, 1.25),
    (-37.25, -15, 1.25),
    (-37.25, 15, 1.25),
    (-37.25, 45, 1.25),
    (37.25, 15, 1.25),
    (37.25, 45, 1.25),
    (37.25, -15, 1.25),
    (37.25, -45, 1.25),
]))
chamfer.Size = 0.5

doc.recompute()
